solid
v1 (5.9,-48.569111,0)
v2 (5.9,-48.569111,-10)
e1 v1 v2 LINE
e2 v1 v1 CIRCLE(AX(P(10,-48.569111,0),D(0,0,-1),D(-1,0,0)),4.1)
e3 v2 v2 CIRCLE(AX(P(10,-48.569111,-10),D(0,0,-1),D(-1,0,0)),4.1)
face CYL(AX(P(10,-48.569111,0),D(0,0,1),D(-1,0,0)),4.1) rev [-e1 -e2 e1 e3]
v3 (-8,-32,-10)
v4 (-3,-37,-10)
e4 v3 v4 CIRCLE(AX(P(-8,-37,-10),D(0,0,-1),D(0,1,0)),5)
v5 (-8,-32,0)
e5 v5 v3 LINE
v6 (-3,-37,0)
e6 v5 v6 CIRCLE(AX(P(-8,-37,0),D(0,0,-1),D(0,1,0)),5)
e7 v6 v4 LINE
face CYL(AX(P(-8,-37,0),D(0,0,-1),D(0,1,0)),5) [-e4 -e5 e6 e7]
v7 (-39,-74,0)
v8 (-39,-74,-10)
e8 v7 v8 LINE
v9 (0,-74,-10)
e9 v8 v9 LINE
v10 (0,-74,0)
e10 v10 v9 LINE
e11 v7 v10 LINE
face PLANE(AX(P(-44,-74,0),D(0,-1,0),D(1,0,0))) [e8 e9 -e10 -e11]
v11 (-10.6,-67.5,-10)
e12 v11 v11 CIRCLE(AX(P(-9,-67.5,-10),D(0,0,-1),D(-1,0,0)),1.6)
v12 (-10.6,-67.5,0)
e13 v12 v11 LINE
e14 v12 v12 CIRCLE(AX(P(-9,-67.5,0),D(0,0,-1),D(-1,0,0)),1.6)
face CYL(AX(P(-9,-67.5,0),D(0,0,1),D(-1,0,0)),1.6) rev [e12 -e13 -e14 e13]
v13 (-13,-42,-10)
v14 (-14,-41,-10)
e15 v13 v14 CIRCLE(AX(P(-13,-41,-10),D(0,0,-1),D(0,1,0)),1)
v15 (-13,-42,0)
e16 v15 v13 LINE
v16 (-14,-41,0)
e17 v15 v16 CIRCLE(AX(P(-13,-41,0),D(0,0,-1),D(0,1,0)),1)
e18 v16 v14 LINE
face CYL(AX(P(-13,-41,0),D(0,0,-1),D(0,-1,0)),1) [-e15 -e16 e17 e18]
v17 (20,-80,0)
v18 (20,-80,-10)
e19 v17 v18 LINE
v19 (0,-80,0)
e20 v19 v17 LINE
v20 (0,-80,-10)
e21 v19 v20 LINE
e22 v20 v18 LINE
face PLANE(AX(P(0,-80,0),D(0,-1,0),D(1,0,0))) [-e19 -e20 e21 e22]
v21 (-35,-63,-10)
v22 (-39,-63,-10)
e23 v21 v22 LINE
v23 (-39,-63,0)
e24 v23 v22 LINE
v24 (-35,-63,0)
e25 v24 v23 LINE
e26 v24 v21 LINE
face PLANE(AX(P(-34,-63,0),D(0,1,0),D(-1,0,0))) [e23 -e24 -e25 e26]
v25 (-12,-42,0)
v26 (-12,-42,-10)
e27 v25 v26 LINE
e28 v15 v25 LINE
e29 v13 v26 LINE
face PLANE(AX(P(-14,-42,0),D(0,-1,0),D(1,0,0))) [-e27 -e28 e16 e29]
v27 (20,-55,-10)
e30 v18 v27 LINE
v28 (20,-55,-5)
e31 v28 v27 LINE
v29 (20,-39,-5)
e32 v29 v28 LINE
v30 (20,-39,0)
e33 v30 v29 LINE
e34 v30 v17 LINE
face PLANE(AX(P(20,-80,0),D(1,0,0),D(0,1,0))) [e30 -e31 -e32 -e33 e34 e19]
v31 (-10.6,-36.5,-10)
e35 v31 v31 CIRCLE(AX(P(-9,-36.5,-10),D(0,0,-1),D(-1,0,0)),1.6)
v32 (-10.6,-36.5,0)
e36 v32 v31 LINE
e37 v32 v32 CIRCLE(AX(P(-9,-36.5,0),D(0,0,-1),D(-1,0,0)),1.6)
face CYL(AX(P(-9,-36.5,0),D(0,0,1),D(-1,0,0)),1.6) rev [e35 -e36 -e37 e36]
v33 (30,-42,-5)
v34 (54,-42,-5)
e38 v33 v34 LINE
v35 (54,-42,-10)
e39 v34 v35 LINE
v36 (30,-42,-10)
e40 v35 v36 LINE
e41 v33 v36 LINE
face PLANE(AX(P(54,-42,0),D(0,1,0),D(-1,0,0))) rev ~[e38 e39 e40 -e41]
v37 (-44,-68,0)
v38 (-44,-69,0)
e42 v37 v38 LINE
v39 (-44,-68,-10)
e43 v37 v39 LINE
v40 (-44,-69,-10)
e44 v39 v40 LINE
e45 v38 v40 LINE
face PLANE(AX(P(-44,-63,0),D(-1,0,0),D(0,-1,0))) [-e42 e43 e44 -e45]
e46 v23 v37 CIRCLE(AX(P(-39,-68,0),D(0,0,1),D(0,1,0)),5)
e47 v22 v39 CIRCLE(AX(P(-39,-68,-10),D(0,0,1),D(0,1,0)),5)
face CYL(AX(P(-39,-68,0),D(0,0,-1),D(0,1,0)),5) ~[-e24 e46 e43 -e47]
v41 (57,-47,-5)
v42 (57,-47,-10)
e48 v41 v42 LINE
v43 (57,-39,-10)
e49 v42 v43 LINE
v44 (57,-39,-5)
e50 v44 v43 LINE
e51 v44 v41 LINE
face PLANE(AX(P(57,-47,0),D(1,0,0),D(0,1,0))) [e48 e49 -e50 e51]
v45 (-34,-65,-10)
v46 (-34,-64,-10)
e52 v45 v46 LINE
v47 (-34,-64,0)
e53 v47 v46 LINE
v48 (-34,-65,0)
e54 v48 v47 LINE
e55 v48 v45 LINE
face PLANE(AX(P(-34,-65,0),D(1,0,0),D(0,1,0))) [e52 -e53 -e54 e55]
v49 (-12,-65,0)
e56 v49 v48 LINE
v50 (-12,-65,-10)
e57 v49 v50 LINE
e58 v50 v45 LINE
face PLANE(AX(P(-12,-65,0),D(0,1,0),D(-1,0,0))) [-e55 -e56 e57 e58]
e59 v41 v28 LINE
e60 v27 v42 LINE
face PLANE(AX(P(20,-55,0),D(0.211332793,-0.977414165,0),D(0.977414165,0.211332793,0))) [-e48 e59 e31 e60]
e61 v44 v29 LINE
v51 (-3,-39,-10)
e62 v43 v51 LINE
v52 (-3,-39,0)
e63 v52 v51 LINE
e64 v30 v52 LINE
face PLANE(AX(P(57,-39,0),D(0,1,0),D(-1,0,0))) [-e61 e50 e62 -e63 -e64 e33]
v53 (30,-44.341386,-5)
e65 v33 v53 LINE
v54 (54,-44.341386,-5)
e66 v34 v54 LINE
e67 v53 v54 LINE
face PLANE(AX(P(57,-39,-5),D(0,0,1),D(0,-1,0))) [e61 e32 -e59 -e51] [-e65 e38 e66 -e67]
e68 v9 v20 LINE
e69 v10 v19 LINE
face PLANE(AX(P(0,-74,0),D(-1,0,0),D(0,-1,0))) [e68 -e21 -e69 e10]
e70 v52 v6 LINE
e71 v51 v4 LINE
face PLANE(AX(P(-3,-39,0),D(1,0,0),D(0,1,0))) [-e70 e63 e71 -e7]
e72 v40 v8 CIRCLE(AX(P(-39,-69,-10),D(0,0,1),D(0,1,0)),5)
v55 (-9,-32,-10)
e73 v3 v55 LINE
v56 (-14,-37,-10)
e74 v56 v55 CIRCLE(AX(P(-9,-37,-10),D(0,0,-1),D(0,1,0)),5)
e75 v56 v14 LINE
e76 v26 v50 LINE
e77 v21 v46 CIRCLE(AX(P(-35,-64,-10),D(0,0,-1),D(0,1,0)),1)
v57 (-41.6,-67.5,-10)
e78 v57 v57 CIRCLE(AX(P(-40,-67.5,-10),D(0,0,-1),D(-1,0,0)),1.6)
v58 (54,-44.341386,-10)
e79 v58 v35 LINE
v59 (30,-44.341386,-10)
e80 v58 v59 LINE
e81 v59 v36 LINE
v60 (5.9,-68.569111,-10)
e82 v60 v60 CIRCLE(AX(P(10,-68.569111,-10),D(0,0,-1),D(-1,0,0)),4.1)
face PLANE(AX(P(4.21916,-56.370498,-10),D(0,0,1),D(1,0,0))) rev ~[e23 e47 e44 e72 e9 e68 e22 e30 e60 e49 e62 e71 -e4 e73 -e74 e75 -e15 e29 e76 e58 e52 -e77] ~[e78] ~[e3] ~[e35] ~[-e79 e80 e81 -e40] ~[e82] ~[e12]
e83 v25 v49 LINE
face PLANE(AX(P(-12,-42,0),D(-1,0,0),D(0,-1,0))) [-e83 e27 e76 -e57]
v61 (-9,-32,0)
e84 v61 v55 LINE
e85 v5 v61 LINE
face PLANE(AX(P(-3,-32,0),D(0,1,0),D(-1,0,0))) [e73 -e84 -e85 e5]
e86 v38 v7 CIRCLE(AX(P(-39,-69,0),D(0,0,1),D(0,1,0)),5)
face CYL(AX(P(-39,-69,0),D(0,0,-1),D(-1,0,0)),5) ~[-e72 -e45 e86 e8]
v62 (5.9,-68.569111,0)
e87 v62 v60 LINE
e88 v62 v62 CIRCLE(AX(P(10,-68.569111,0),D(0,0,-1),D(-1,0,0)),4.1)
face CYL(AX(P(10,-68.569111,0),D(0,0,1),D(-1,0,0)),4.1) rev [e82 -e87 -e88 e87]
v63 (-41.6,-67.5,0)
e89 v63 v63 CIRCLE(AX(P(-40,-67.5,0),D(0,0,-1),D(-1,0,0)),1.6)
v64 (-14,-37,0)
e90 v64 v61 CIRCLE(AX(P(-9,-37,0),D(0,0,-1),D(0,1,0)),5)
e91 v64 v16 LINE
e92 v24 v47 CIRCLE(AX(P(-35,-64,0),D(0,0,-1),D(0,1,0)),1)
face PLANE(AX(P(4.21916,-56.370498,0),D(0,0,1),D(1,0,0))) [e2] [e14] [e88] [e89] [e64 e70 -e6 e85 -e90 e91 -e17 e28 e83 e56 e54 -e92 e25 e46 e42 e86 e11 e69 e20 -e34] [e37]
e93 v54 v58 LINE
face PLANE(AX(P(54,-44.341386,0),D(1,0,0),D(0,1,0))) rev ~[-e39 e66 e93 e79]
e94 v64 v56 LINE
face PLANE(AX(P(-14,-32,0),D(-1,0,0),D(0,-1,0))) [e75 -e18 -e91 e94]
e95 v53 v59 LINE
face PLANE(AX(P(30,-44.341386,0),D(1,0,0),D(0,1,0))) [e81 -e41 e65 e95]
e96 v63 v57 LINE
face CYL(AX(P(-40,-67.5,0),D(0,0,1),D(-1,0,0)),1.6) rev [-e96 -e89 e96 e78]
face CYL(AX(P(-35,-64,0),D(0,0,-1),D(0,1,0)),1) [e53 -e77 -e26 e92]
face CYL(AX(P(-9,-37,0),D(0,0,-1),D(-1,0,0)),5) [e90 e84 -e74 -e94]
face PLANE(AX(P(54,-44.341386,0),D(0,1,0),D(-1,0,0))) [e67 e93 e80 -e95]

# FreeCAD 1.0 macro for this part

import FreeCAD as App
import Part
import Sketcher
from FreeCAD import Vector
Q = App.Units.Quantity


def edges_at(feature, points):
    """Names of the edges that pass closest to the given points."""
    edges = feature.Shape.Edges
    near = lambda p: min(range(len(edges)), key=lambda i: edges[i].distToShape(Part.Vertex(*p))[0])
    return sorted({f"Edge{near(p) + 1}" for p in points})


def add_polygon(sketch, points):
    """Adds a closed chain of lines whose ends are joined by coincident constraints."""
    first, n = sketch.GeometryCount, len(points)
    for a, b in zip(points, points[1:] + points[:1]):
        sketch.addGeometry(Part.LineSegment(App.Vector(*a, 0), App.Vector(*b, 0)), False)
    for i in range(n):
        sketch.addConstraint(Sketcher.Constraint("Coincident", first + i, 2, first + (i + 1) % n, 1))

doc = App.newDocument("Part")
body = doc.addObject("PartDesign::Body", "Body")

# Sketch on XY plane
sketch1 = body.newObject("Sketcher::SketchObject", "Sketch")
sketch1.AttachmentSupport = (doc.getObject("XY_Plane"), [""])
sketch1.MapMode = "FlatFace"
add_polygon(sketch1, [(20, -80), (0, -80), (0, -74), (-44, -74), (-44, -63), (-34, -63), (-34, -65), (-12, -65), (-12, -42), (-14, -42), (-14, -32), (-3, -32), (-3, -39), (57, -39), (57, -47), (20, -55)])  # lines 0-15
sketch1.addGeometry(Part.Circle(Vector(-40, -67.5, 0), Vector(0, 0, 1), 1.6), False)  # 16
sketch1.addGeometry(Part.Circle(Vector(-9, -67.5, 0), Vector(0, 0, 1), 1.6), False)  # 17
sketch1.addGeometry(Part.Circle(Vector(10, -68.569111, 0), Vector(0, 0, 1), 4.1), False)  # 18
sketch1.addGeometry(Part.Circle(Vector(-9, -36.5, 0), Vector(0, 0, 1), 1.6), False)  # 19
sketch1.addGeometry(Part.Circle(Vector(10, -48.569111, 0), Vector(0, 0, 1), 4.1), False)  # 20
add_polygon(sketch1, [(54, -44.341386), (54, -42), (30, -42), (30, -44.341386)])  # lines 21-24
sketch1.addConstraint([
    Sketcher.Constraint("Horizontal", 0),
    Sketcher.Constraint("Vertical", 1),
    Sketcher.Constraint("Horizontal", 2),
    Sketcher.Constraint("Vertical", 3),
    Sketcher.Constraint("Horizontal", 4),
    Sketcher.Constraint("Vertical", 5),
    Sketcher.Constraint("Horizontal", 6),
    Sketcher.Constraint("Vertical", 7),
    Sketcher.Constraint("Horizontal", 8),
    Sketcher.Constraint("Vertical", 9),
    Sketcher.Constraint("Horizontal", 10),
    Sketcher.Constraint("Vertical", 11),
    Sketcher.Constraint("Horizontal", 12),
    Sketcher.Constraint("Vertical", 13),
    Sketcher.Constraint("Vertical", 15),
    Sketcher.Constraint("Vertical", 21),
    Sketcher.Constraint("Horizontal", 22),
    Sketcher.Constraint("Vertical", 23),
    Sketcher.Constraint("Horizontal", 24),
    Sketcher.Constraint("Equal", 16, 17),
    Sketcher.Constraint("Equal", 17, 19),
    Sketcher.Constraint("Equal", 18, 20),
    Sketcher.Constraint("PointOnObject", 0, 2, -2),
    Sketcher.Constraint("Horizontal", 16, 3, 17, 3),
    Sketcher.Constraint("Horizontal", 8, 2, 21, 2),
    Sketcher.Constraint("Vertical", 17, 3, 19, 3),
    Sketcher.Constraint("Vertical", 18, 3, 20, 3),
    Sketcher.Constraint("Equal", 10, 3),
    Sketcher.Constraint("Equal", 8, 5),
    Sketcher.Constraint("Equal", 4, 9),
    Sketcher.Constraint("Diameter", 16, Q("3.2 mm")),
    Sketcher.Constraint("Diameter", 18, Q("8.2 mm")),
    Sketcher.Constraint("DistanceX", 0, 2, 0, 1, Q("20 mm")),
    Sketcher.Constraint("DistanceX", 2, 2, 2, 1, Q("44 mm")),
    Sketcher.Constraint("DistanceX", 4, 1, 4, 2, Q("10 mm")),
    Sketcher.Constraint("DistanceX", 6, 1, 6, 2, Q("22 mm")),
    Sketcher.Constraint("DistanceX", 8, 2, 8, 1, Q("2 mm")),
    Sketcher.Constraint("DistanceX", 10, 1, 10, 2, Q("11 mm")),
    Sketcher.Constraint("DistanceX", 12, 1, 12, 2, Q("60 mm")),
    Sketcher.Constraint("DistanceX", 22, 2, 22, 1, Q("24 mm")),
    Sketcher.Constraint("DistanceY", 1, 1, 1, 2, Q("6 mm")),
    Sketcher.Constraint("DistanceY", 7, 1, 7, 2, Q("23 mm")),
    Sketcher.Constraint("DistanceY", 11, 2, 11, 1, Q("7 mm")),
    Sketcher.Constraint("DistanceY", 13, 2, 13, 1, Q("8 mm")),
    Sketcher.Constraint("DistanceY", 15, 2, 15, 1, Q("25 mm")),
    Sketcher.Constraint("DistanceX", 16, 3, -1, 1, Q("40 mm")),
    Sketcher.Constraint("DistanceX", 17, 3, -1, 1, Q("9 mm")),
    Sketcher.Constraint("DistanceX", -1, 1, 18, 3, Q("10 mm")),
    Sketcher.Constraint("DistanceY", 0, 2, -1, 1, Q("80 mm")),
    Sketcher.Constraint("DistanceX", -1, 1, 21, 2, Q("54 mm")),
    Sketcher.Constraint("DistanceY", 17, 3, 19, 3, Q("31 mm")),
    Sketcher.Constraint("DistanceY", 18, 3, 20, 3, Q("20 mm")),
    Sketcher.Constraint("DistanceY", 16, 3, -1, 1, Q("67.5 mm")),
    Sketcher.Constraint("DistanceY", 21, 1, 21, 2, Q("2.341385 mm")),
    Sketcher.Constraint("DistanceY", 18, 3, -1, 1, Q("68.569111 mm")),
])
pad1 = body.newObject("PartDesign::Pad", "Pad")
pad1.Profile = sketch1
pad1.Length = 10
pad1.Reversed = True

# Sketch on YZ plane
sketch2 = body.newObject("Sketcher::SketchObject", "Sketch001")
sketch2.AttachmentSupport = (doc.getObject("YZ_Plane"), [""])
sketch2.MapMode = "FlatFace"
sketch2.AttachmentOffset = App.Placement(Vector(0, 0, 57), App.Rotation())
add_polygon(sketch2, [(-39, -5), (-39, 0), (-55, 0), (-55, -5)])  # lines 0-3
sketch2.addConstraint([
    Sketcher.Constraint("Vertical", 0),
    Sketcher.Constraint("Horizontal", 1),
    Sketcher.Constraint("Vertical", 2),
    Sketcher.Constraint("Horizontal", 3),
    Sketcher.Constraint("PointOnObject", 0, 2, -1),
    Sketcher.Constraint("DistanceX", 1, 2, 1, 1, Q("16 mm")),
    Sketcher.Constraint("DistanceY", 0, 1, 0, 2, Q("5 mm")),
    Sketcher.Constraint("DistanceX", 0, 2, -1, 1, Q("39 mm")),
])
pocket1 = body.newObject("PartDesign::Pocket", "Pocket")
pocket1.Profile = sketch2
pocket1.Length = 37
doc.recompute()

fillet = body.newObject("PartDesign::Fillet", "Fillet")
fillet.Base = (pocket1, edges_at(pocket1, [
    (-44, -74, -5),
    (-44, -63, -5),
    (-14, -32, -5),
    (-3, -32, -5),
]))
fillet.Radius = 5
doc.recompute()

fillet2 = body.newObject("PartDesign::Fillet", "Fillet001")
fillet2.Base = (fillet, edges_at(fillet, [(-34, -63, -5), (-14, -42, -5)]))
fillet2.Radius = 1

doc.recompute()
